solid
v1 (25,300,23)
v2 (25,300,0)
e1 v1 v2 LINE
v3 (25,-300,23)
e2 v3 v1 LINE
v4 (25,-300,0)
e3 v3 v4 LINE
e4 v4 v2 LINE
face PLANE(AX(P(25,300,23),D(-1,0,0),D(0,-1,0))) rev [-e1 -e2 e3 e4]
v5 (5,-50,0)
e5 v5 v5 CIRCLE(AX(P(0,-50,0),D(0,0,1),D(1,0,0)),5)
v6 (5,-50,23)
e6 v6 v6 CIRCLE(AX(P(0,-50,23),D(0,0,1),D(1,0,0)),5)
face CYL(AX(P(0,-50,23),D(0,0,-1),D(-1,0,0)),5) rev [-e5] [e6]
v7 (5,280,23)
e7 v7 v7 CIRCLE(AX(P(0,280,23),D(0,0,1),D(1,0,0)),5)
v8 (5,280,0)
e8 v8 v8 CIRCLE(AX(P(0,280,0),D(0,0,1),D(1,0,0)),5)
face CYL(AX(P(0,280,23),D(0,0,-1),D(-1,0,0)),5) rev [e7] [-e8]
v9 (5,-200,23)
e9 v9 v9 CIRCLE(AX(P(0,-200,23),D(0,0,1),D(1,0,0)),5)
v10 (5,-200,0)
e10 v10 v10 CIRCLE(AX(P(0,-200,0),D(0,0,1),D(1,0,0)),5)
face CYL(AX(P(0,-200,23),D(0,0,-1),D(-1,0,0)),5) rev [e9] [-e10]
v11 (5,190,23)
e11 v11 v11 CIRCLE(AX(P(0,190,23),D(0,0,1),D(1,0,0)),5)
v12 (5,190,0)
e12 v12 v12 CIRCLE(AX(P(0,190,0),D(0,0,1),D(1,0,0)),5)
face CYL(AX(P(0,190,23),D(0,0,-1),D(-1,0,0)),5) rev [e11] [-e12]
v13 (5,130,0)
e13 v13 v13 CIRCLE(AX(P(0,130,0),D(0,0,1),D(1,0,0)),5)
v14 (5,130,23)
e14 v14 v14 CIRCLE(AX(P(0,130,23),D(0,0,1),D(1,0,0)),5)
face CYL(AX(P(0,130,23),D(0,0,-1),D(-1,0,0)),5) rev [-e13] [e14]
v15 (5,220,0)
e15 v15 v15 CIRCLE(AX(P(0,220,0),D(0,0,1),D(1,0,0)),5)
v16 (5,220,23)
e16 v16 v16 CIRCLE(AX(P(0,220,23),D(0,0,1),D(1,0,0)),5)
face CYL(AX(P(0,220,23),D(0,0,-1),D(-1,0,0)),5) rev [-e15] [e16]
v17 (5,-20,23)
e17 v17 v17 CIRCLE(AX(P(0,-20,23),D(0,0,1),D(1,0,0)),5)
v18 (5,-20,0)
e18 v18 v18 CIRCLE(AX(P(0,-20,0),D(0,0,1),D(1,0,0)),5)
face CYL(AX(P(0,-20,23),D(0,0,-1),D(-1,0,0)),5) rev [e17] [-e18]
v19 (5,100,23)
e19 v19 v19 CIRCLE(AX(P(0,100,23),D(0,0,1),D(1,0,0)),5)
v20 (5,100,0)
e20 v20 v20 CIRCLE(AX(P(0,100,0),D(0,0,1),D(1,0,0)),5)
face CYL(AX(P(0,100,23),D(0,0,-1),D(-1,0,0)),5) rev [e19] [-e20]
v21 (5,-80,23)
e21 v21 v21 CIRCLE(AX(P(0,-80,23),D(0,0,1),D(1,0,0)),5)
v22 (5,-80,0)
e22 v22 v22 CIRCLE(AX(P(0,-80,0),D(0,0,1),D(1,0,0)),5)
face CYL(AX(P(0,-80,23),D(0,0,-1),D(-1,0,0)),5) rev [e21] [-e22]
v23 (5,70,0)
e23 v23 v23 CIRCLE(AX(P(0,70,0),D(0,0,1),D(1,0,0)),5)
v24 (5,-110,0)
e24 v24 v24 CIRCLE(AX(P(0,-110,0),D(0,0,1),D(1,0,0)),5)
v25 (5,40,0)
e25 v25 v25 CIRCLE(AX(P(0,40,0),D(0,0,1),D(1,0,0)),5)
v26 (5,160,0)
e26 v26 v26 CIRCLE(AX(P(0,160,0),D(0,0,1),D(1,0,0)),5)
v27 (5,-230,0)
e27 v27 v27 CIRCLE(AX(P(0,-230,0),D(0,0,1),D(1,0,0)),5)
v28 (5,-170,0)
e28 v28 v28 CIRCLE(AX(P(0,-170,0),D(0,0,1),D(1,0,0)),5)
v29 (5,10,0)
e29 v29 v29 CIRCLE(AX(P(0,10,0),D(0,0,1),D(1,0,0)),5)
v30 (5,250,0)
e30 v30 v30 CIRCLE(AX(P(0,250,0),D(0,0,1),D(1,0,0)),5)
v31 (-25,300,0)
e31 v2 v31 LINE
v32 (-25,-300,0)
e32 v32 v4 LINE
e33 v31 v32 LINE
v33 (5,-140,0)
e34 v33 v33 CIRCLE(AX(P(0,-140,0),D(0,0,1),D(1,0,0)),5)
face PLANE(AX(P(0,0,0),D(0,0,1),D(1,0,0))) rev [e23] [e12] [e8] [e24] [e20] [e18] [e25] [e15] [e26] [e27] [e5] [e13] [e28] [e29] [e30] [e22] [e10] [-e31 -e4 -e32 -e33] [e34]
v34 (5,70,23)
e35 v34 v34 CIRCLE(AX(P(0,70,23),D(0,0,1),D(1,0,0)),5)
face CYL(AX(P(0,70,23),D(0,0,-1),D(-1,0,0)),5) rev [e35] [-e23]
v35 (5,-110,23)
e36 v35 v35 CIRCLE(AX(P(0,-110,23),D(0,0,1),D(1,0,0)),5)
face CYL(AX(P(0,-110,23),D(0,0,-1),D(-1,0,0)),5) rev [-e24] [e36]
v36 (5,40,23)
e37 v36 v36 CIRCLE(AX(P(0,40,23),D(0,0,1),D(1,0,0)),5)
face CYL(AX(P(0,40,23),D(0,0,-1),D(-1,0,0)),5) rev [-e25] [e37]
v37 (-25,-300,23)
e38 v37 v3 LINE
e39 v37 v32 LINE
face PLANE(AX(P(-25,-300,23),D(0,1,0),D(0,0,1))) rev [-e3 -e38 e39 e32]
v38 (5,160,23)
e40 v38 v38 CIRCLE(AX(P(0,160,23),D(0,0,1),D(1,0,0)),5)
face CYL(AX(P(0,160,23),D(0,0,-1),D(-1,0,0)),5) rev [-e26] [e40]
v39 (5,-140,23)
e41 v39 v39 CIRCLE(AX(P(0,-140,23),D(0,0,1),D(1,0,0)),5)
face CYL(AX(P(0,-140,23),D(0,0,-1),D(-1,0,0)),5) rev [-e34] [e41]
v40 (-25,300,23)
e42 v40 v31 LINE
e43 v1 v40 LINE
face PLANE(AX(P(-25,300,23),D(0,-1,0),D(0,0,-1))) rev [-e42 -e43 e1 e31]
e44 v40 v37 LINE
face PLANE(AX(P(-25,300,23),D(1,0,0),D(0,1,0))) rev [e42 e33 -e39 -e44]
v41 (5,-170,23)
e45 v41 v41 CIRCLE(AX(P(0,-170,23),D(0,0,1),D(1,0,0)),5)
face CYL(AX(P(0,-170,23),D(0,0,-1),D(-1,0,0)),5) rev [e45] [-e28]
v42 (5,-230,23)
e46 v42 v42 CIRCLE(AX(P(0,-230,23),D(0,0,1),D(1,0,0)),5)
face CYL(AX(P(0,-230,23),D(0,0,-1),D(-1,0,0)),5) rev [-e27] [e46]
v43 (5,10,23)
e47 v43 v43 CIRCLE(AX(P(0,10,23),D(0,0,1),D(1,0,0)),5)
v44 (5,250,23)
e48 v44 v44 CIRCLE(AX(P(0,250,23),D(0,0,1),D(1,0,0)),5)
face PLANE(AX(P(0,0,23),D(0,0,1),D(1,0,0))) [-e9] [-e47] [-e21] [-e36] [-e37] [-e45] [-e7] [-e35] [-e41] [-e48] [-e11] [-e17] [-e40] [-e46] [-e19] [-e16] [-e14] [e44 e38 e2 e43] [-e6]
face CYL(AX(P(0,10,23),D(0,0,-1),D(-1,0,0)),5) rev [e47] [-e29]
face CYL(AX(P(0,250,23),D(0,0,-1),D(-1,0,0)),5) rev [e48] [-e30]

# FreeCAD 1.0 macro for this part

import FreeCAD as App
import Part
import Sketcher

V = App.Vector
Q = App.Units.Quantity


def add_polygon(sketch, points):
    """Adds a closed chain of lines whose ends are joined by coincident constraints."""
    first, n = sketch.GeometryCount, len(points)
    for a, b in zip(points, points[1:] + points[:1]):
        sketch.addGeometry(Part.LineSegment(App.Vector(*a, 0), App.Vector(*b, 0)), False)
    for i in range(n):
        sketch.addConstraint(Sketcher.Constraint("Coincident", first + i, 2, first + (i + 1) % n, 1))

doc = App.newDocument("Part")
body = doc.addObject("PartDesign::Body", "Body")

sketch1 = body.newObject("Sketcher::SketchObject", "Sketch")
sketch1.AttachmentSupport = (doc.getObject("XY_Plane"), [""])
sketch1.MapMode = "FlatFace"
add_polygon(sketch1, [(-25, 300), (-25, -300), (25, -300), (25, 300)])
sketch1.addGeometry(Part.Circle(V(0, -230, 0), V(0, 0, 1), 5), False)
sketch1.addGeometry(Part.Circle(V(0, -200, 0), V(0, 0, 1), 5), False)
sketch1.addGeometry(Part.Circle(V(0, -170, 0), V(0, 0, 1), 5), False)
sketch1.addGeometry(Part.Circle(V(0, -140, 0), V(0, 0, 1), 5), False)
sketch1.addGeometry(Part.Circle(V(0, -110, 0), V(0, 0, 1), 5), False)
sketch1.addGeometry(Part.Circle(V(0, -80, 0), V(0, 0, 1), 5), False)
sketch1.addGeometry(Part.Circle(V(0, -50, 0), V(0, 0, 1), 5), False)
sketch1.addGeometry(Part.Circle(V(0, -20, 0), V(0, 0, 1), 5), False)
sketch1.addGeometry(Part.Circle(V(0, 10, 0), V(0, 0, 1), 5), False)
sketch1.addGeometry(Part.Circle(V(0, 40, 0), V(0, 0, 1), 5), False)
sketch1.addGeometry(Part.Circle(V(0, 70, 0), V(0, 0, 1), 5), False)
sketch1.addGeometry(Part.Circle(V(0, 100, 0), V(0, 0, 1), 5), False)
sketch1.addGeometry(Part.Circle(V(0, 130, 0), V(0, 0, 1), 5), False)
sketch1.addGeometry(Part.Circle(V(0, 160, 0), V(0, 0, 1), 5), False)
sketch1.addGeometry(Part.Circle(V(0, 190, 0), V(0, 0, 1), 5), False)
sketch1.addGeometry(Part.Circle(V(0, 220, 0), V(0, 0, 1), 5), False)
sketch1.addGeometry(Part.Circle(V(0, 250, 0), V(0, 0, 1), 5), False)
sketch1.addGeometry(Part.Circle(V(0, 280, 0), V(0, 0, 1), 5), False)
sketch1.addConstraint([
    Sketcher.Constraint("Vertical", 0),
    Sketcher.Constraint("Horizontal", 1),
    Sketcher.Constraint("Vertical", 2),
    Sketcher.Constraint("Horizontal", 3),
    Sketcher.Constraint("Equal", 4, 5),
    Sketcher.Constraint("Equal", 5, 6),
    Sketcher.Constraint("Equal", 6, 7),
    Sketcher.Constraint("Equal", 7, 8),
    Sketcher.Constraint("Equal", 8, 9),
    Sketcher.Constraint("Equal", 9, 10),
    Sketcher.Constraint("Equal", 10, 11),
    Sketcher.Constraint("Equal", 11, 12),
    Sketcher.Constraint("Equal", 12, 13),
    Sketcher.Constraint("Equal", 13, 14),
    Sketcher.Constraint("Equal", 14, 15),
    Sketcher.Constraint("Equal", 15, 16),
    Sketcher.Constraint("Equal", 16, 17),
    Sketcher.Constraint("Equal", 17, 18),
    Sketcher.Constraint("Equal", 18, 19),
    Sketcher.Constraint("Equal", 19, 20),
    Sketcher.Constraint("Equal", 20, 21),
    Sketcher.Constraint("Symmetric", 0, 2, 2, 2, -1, 1),
    Sketcher.Constraint("PointOnObject", 4, 3, -2),
    Sketcher.Constraint("PointOnObject", 5, 3, -2),
    Sketcher.Constraint("PointOnObject", 6, 3, -2),
    Sketcher.Constraint("PointOnObject", 7, 3, -2),
    Sketcher.Constraint("PointOnObject", 8, 3, -2),
    Sketcher.Constraint("PointOnObject", 9, 3, -2),
    Sketcher.Constraint("PointOnObject", 10, 3, -2),
    Sketcher.Constraint("PointOnObject", 11, 3, -2),
    Sketcher.Constraint("PointOnObject", 12, 3, -2),
    Sketcher.Constraint("PointOnObject", 13, 3, -2),
    Sketcher.Constraint("PointOnObject", 14, 3, -2),
    Sketcher.Constraint("PointOnObject", 15, 3, -2),
    Sketcher.Constraint("PointOnObject", 16, 3, -2),
    Sketcher.Constraint("PointOnObject", 17, 3, -2),
    Sketcher.Constraint("PointOnObject", 18, 3, -2),
    Sketcher.Constraint("PointOnObject", 19, 3, -2),
    Sketcher.Constraint("PointOnObject", 20, 3, -2),
    Sketcher.Constraint("PointOnObject", 21, 3, -2),
    Sketcher.Constraint("Diameter", 4, Q("10 mm")),
    Sketcher.Constraint("DistanceX", 1, 1, 1, 2, Q("50 mm")),
    Sketcher.Constraint("DistanceY", 0, 2, 0, 1, Q("600 mm")),
    Sketcher.Constraint("DistanceY", 4, 3, -1, 1, Q("230 mm")),
    Sketcher.Constraint("DistanceY", 5, 3, -1, 1, Q("200 mm")),
    Sketcher.Constraint("DistanceY", 6, 3, -1, 1, Q("170 mm")),
    Sketcher.Constraint("DistanceY", 7, 3, -1, 1, Q("140 mm")),
    Sketcher.Constraint("DistanceY", 8, 3, -1, 1, Q("110 mm")),
    Sketcher.Constraint("DistanceY", 9, 3, -1, 1, Q("80 mm")),
    Sketcher.Constraint("DistanceY", 10, 3, -1, 1, Q("50 mm")),
    Sketcher.Constraint("DistanceY", 11, 3, -1, 1, Q("20 mm")),
    Sketcher.Constraint("DistanceY", -1, 1, 12, 3, Q("10 mm")),
    Sketcher.Constraint("DistanceY", -1, 1, 13, 3, Q("40 mm")),
    Sketcher.Constraint("DistanceY", -1, 1, 14, 3, Q("70 mm")),
    Sketcher.Constraint("DistanceY", -1, 1, 15, 3, Q("100 mm")),
    Sketcher.Constraint("DistanceY", -1, 1, 16, 3, Q("130 mm")),
    Sketcher.Constraint("DistanceY", -1, 1, 17, 3, Q("160 mm")),
    Sketcher.Constraint("DistanceY", -1, 1, 18, 3, Q("190 mm")),
    Sketcher.Constraint("DistanceY", -1, 1, 19, 3, Q("220 mm")),
    Sketcher.Constraint("DistanceY", -1, 1, 20, 3, Q("250 mm")),
    Sketcher.Constraint("DistanceY", -1, 1, 21, 3, Q("280 mm")),
])
pad1 = body.newObject("PartDesign::Pad", "Pad")
pad1.Profile = sketch1
pad1.Length = 23

doc.recompute()
